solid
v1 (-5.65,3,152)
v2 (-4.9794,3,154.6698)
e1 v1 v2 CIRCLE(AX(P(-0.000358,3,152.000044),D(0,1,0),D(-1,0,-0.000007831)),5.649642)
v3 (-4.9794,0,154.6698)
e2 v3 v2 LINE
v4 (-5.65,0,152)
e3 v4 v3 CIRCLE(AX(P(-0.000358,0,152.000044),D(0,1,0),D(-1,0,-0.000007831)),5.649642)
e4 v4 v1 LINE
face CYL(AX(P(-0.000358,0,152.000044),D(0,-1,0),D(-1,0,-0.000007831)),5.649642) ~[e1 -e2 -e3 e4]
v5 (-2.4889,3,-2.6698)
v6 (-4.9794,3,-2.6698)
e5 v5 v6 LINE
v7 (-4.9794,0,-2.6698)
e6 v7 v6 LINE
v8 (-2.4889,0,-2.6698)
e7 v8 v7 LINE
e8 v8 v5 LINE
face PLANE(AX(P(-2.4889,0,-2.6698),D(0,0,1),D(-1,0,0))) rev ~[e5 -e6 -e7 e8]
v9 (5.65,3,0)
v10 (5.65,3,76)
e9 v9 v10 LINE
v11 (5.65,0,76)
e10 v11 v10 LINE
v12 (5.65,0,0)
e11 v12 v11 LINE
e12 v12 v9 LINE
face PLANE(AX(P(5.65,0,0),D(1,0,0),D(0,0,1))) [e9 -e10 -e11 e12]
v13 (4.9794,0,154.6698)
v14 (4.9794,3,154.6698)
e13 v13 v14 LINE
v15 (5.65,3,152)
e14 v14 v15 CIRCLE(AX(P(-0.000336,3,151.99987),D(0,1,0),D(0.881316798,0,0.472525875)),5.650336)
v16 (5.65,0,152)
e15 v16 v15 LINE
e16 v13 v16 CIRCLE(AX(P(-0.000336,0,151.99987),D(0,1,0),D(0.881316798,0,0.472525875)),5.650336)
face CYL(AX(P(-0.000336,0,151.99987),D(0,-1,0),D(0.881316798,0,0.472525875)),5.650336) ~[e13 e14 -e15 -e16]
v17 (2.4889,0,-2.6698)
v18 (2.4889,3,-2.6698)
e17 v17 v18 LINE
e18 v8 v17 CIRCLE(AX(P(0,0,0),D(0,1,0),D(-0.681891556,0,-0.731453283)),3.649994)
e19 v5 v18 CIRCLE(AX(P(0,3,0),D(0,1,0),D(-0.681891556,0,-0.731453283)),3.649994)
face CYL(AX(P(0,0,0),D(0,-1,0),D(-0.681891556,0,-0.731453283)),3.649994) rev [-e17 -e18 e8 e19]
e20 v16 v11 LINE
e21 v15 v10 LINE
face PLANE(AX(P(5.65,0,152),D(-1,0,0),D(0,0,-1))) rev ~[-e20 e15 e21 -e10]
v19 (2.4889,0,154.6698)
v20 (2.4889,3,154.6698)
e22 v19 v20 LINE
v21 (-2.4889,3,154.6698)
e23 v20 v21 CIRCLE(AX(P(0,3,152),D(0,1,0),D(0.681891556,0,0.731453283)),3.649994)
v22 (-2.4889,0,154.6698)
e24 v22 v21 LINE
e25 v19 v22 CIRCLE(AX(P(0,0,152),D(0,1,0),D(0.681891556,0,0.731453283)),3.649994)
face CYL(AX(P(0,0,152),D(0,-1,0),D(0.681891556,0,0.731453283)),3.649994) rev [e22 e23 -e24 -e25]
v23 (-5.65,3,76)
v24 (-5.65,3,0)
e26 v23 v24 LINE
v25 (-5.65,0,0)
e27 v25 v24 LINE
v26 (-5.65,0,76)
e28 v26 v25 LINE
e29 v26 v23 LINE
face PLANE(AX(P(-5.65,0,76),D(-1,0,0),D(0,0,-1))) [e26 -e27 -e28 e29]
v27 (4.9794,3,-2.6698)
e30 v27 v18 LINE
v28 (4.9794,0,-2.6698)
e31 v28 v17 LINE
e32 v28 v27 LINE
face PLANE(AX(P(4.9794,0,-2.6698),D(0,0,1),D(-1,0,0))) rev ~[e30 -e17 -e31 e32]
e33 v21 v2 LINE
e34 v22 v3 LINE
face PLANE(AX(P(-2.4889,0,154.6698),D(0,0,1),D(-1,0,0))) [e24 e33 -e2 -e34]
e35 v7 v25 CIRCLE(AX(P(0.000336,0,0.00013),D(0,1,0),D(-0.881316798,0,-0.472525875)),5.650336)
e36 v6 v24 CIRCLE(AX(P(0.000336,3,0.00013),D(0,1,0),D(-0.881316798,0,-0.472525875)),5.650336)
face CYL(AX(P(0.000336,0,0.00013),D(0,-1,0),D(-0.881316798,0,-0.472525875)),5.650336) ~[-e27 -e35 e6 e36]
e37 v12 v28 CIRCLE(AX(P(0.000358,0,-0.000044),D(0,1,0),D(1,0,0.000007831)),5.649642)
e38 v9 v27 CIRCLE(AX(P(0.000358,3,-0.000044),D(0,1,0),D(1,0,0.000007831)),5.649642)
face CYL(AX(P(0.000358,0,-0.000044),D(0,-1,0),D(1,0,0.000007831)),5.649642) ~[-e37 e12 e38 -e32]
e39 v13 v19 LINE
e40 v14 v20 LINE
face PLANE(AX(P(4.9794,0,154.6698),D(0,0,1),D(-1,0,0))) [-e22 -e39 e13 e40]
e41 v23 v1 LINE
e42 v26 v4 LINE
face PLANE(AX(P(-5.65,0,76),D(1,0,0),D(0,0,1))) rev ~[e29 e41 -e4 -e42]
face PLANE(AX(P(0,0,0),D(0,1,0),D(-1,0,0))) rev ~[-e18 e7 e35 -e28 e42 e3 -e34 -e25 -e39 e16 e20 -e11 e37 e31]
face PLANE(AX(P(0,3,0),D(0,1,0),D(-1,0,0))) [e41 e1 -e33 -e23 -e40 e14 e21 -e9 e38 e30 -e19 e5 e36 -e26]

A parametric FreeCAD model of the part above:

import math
import FreeCAD as App
import Part
import Sketcher

V = App.Vector

doc = App.newDocument("Part")
body = doc.addObject("PartDesign::Body", "Body")

sketch1 = doc.addObject("Sketcher::SketchObject", "Sketch")
body.addObject(sketch1)
sketch1.AttachmentSupport = (doc.XZ_Plane, [""])
sketch1.MapMode = "FlatFace"
sketch1.addGeometry([
    Part.ArcOfCircle(Part.Circle(V(0, 0, 0), V(0, 0, 1), 3.6), math.radians(-47), math.radians(227)),
    Part.LineSegment(V(-2.5, -2.7, 0), V(-5, -2.7, 0)),
    Part.ArcOfCircle(Part.Circle(V(0, 0, 0), V(0, 0, 1), 5.7), math.radians(180), math.radians(208)),
    Part.LineSegment(V(-5.7, 0, 0), V(-5.7, 152, 0)),
    Part.ArcOfCircle(Part.Circle(V(0, 152, 0), V(0, 0, 1), 5.6), math.radians(152), math.radians(180)),
    Part.LineSegment(V(-5, 154.7, 0), V(-2.5, 154.7, 0)),
    Part.ArcOfCircle(Part.Circle(V(0, 152, 0), V(0, 0, 1), 3.6), math.radians(133), math.radians(407)),
    Part.LineSegment(V(2.5, 154.7, 0), V(5, 154.7, 0)),
    Part.ArcOfCircle(Part.Circle(V(0, 152, 0), V(0, 0, 1), 5.7), math.radians(0), math.radians(28)),
    Part.LineSegment(V(5.7, 152, 0), V(5.7, 0, 0)),
    Part.ArcOfCircle(Part.Circle(V(0, 0, 0), V(0, 0, 1), 5.6), math.radians(-28), math.radians(0)),
    Part.LineSegment(V(5, -2.7, 0), V(2.5, -2.7, 0)),
], False)
sketch1.addConstraint([
    Sketcher.Constraint("Coincident", 0, 2, 1, 1),
    Sketcher.Constraint("Coincident", 1, 2, 2, 2),
    Sketcher.Constraint("Tangent", 2, 1, 3, 1),
    Sketcher.Constraint("Tangent", 3, 2, 4, 2),
    Sketcher.Constraint("Coincident", 4, 1, 5, 1),
    Sketcher.Constraint("Coincident", 5, 2, 6, 1),
    Sketcher.Constraint("Coincident", 6, 2, 7, 1),
    Sketcher.Constraint("Coincident", 7, 2, 8, 2),
    Sketcher.Constraint("Tangent", 8, 1, 9, 1),
    Sketcher.Constraint("Tangent", 9, 2, 10, 2),
    Sketcher.Constraint("Coincident", 10, 1, 11, 1),
    Sketcher.Constraint("Coincident", 11, 2, 0, 1),
    Sketcher.Constraint("Horizontal", 1),
    Sketcher.Constraint("Vertical", 3),
    Sketcher.Constraint("Horizontal", 5),
    Sketcher.Constraint("Horizontal", 7),
    Sketcher.Constraint("Vertical", 9),
    Sketcher.Constraint("Horizontal", 11),
    Sketcher.Constraint("Coincident", 0, 3, -1, 1),
    Sketcher.Constraint("Coincident", 2, 3, -1, 1),
    Sketcher.Constraint("Coincident", 10, 3, -1, 1),
    Sketcher.Constraint("Coincident", 6, 3, 4, 3),
    Sketcher.Constraint("Coincident", 8, 3, 4, 3),
    Sketcher.Constraint("Equal", 2, 4),
    Sketcher.Constraint("Equal", 0, 6),
    Sketcher.Constraint("Equal", 4, 8),
    Sketcher.Constraint("Horizontal", 5, 2, 6, 2),
    Sketcher.Constraint("Horizontal", 1, 2, 10, 1),
    Sketcher.Constraint("Vertical", 1, 2, 4, 1),
    Sketcher.Constraint("Radius", 0, 3.65),
    Sketcher.Constraint("DistanceY", 3, 1, 3, 2, 152.0),
    Sketcher.Constraint("Radius", 2, 5.65),
    Sketcher.Constraint("DistanceX", 1, 2, 1, 1, 2.4905),
])
pad1 = doc.addObject("PartDesign::Pad", "Pad")
body.addObject(pad1)
pad1.Profile = sketch1
pad1.Length = 3
pad1.Reversed = True

doc.recompute()
